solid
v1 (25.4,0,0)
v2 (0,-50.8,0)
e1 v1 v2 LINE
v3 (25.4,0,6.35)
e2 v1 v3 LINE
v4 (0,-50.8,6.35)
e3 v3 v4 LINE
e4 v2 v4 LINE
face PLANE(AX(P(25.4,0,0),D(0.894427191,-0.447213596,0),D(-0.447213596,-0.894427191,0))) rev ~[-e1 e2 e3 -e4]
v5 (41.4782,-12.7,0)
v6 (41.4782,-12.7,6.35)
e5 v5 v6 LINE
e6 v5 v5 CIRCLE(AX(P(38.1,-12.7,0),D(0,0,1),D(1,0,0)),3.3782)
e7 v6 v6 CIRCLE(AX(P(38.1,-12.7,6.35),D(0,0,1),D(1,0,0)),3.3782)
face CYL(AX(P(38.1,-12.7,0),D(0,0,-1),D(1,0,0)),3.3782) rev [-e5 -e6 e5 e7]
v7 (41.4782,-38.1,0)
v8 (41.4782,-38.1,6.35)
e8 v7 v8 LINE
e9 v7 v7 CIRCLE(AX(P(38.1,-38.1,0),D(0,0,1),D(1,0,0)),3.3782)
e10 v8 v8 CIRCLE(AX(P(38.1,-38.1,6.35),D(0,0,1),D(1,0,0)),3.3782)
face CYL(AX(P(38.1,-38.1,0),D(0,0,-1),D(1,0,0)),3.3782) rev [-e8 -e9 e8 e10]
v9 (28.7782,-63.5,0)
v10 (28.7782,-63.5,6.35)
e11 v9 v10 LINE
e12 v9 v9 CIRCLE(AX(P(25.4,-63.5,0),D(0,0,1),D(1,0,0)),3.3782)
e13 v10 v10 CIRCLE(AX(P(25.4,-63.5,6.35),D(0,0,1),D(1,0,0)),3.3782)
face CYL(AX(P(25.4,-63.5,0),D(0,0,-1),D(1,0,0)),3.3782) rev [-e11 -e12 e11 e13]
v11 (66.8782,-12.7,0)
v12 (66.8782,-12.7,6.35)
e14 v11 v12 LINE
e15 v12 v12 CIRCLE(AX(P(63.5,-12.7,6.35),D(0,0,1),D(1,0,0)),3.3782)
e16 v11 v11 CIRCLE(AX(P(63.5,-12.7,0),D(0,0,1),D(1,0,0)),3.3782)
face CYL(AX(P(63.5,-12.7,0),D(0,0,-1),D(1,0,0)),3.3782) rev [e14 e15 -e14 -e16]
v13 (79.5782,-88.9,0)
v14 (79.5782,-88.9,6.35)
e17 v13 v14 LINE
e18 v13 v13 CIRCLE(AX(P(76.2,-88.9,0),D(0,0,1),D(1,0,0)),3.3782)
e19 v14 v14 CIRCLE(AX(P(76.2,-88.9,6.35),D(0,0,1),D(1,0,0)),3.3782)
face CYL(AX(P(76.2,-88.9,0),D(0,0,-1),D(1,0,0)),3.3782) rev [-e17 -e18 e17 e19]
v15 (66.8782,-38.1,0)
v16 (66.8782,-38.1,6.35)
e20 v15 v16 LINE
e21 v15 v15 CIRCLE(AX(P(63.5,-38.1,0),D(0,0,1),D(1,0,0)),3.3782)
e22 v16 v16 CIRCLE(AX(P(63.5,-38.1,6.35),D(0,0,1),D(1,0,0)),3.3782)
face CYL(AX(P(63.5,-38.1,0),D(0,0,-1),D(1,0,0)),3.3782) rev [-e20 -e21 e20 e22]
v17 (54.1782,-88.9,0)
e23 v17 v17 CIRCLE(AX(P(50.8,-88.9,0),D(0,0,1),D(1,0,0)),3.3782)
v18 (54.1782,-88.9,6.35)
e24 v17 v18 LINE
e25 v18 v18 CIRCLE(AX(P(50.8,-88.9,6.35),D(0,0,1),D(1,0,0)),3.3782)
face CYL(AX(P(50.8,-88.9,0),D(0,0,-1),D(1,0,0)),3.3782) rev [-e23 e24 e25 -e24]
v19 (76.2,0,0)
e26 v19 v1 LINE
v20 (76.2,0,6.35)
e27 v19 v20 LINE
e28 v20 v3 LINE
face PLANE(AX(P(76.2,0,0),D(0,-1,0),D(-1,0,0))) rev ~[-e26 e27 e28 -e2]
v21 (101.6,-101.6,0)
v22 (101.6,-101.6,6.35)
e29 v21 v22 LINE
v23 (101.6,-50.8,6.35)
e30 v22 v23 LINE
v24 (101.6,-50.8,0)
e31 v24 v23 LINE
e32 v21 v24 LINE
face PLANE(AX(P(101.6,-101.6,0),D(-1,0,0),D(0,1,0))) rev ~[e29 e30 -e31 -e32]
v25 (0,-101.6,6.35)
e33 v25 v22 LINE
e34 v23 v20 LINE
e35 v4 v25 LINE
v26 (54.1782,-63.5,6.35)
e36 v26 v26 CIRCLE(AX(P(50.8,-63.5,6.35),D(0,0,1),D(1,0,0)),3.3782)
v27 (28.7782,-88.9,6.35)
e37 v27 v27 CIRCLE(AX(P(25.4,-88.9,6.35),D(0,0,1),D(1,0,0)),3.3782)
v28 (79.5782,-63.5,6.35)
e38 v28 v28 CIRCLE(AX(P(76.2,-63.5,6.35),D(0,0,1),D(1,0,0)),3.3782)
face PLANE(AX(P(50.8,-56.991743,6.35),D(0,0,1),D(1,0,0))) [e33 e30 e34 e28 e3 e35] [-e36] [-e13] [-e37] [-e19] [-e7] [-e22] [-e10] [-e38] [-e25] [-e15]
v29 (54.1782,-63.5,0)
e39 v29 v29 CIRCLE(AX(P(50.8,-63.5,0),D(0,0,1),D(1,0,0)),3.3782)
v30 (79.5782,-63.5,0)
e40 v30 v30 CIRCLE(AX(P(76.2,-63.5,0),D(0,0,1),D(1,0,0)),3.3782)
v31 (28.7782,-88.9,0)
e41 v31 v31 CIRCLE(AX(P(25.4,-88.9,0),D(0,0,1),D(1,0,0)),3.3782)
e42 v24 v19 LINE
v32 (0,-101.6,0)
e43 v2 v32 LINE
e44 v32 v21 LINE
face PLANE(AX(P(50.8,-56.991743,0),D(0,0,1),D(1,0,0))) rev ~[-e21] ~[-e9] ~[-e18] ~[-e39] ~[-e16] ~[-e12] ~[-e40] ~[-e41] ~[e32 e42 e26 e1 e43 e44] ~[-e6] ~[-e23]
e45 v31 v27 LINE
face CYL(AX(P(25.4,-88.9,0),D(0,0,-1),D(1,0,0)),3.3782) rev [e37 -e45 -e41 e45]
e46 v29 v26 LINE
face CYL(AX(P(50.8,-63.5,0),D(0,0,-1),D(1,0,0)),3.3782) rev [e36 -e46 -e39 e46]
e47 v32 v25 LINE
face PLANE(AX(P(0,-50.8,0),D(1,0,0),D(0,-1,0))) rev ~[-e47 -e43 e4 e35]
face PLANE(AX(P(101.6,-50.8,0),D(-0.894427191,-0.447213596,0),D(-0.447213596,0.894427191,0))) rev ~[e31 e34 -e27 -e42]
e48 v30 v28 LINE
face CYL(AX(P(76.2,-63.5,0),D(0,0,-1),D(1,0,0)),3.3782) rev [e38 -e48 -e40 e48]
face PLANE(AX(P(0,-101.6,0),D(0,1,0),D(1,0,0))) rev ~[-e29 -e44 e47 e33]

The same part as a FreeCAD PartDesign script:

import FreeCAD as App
import Part
import Sketcher
from FreeCAD import Vector
Q = App.Units.Quantity


def add_polygon(sketch, points):
    """Adds a closed chain of lines whose ends are joined by coincident constraints."""
    first, n = sketch.GeometryCount, len(points)
    for a, b in zip(points, points[1:] + points[:1]):
        sketch.addGeometry(Part.LineSegment(App.Vector(*a, 0), App.Vector(*b, 0)), False)
    for i in range(n):
        sketch.addConstraint(Sketcher.Constraint("Coincident", first + i, 2, first + (i + 1) % n, 1))

doc = App.newDocument("Part")
body = doc.addObject("PartDesign::Body", "Body")

sketch1 = body.newObject("Sketcher::SketchObject", "Sketch")
sketch1.AttachmentSupport = (doc.getObject("XY_Plane"), [""])
sketch1.MapMode = "FlatFace"
add_polygon(sketch1, [(76.2, 0), (25.4, 0), (0, -50.8), (0, -101.6), (101.6, -101.6), (101.6, -50.8)])
sketch1.addGeometry(Part.Circle(Vector(25.4, -88.9, 0), Vector(0, 0, 1), 3.4), False)
sketch1.addGeometry(Part.Circle(Vector(50.8, -88.9, 0), Vector(0, 0, 1), 3.4), False)
sketch1.addGeometry(Part.Circle(Vector(25.4, -63.5, 0), Vector(0, 0, 1), 3.4), False)
sketch1.addGeometry(Part.Circle(Vector(50.8, -63.5, 0), Vector(0, 0, 1), 3.4), False)
sketch1.addGeometry(Part.Circle(Vector(76.2, -88.9, 0), Vector(0, 0, 1), 3.4), False)
sketch1.addGeometry(Part.Circle(Vector(76.2, -63.5, 0), Vector(0, 0, 1), 3.4), False)
sketch1.addGeometry(Part.Circle(Vector(38.1, -38.1, 0), Vector(0, 0, 1), 3.4), False)
sketch1.addGeometry(Part.Circle(Vector(38.1, -12.7, 0), Vector(0, 0, 1), 3.4), False)
sketch1.addGeometry(Part.Circle(Vector(63.5, -38.1, 0), Vector(0, 0, 1), 3.4), False)
sketch1.addGeometry(Part.Circle(Vector(63.5, -12.7, 0), Vector(0, 0, 1), 3.4), False)
sketch1.addConstraint([
    Sketcher.Constraint("Horizontal", 0),
    Sketcher.Constraint("Vertical", 2),
    Sketcher.Constraint("Horizontal", 3),
    Sketcher.Constraint("Vertical", 4),
    Sketcher.Constraint("Equal", 6, 7),
    Sketcher.Constraint("Equal", 7, 8),
    Sketcher.Constraint("Equal", 8, 9),
    Sketcher.Constraint("Equal", 9, 10),
    Sketcher.Constraint("Equal", 10, 11),
    Sketcher.Constraint("Equal", 11, 12),
    Sketcher.Constraint("Equal", 12, 13),
    Sketcher.Constraint("Equal", 13, 14),
    Sketcher.Constraint("Equal", 14, 15),
    Sketcher.Constraint("PointOnObject", 0, 2, -1),
    Sketcher.Constraint("PointOnObject", 1, 2, -2),
    Sketcher.Constraint("Horizontal", 6, 3, 7, 3),
    Sketcher.Constraint("Horizontal", 8, 3, 9, 3),
    Sketcher.Constraint("Horizontal", 7, 3, 10, 3),
    Sketcher.Constraint("Horizontal", 9, 3, 11, 3),
    Sketcher.Constraint("Horizontal", 12, 3, 14, 3),
    Sketcher.Constraint("Horizontal", 13, 3, 15, 3),
    Sketcher.Constraint("Horizontal", 1, 2, 4, 2),
    Sketcher.Constraint("Vertical", 6, 3, 8, 3),
    Sketcher.Constraint("Vertical", 7, 3, 9, 3),
    Sketcher.Constraint("Vertical", 10, 3, 11, 3),
    Sketcher.Constraint("Vertical", 12, 3, 13, 3),
    Sketcher.Constraint("Vertical", 14, 3, 15, 3),
    Sketcher.Constraint("Vertical", 8, 3, 0, 2),
    Sketcher.Constraint("Vertical", 11, 3, 5, 2),
    Sketcher.Constraint("Equal", 0, 2),
    Sketcher.Constraint("Equal", 1, 5),
    Sketcher.Constraint("DistanceX", 0, 2, 0, 1, Q("2 in")),
    Sketcher.Constraint("DistanceX", 3, 1, 3, 2, Q("4 in")),
    Sketcher.Constraint("Diameter", 6, Q("0.266 in")),
    Sketcher.Constraint("DistanceX", -1, 1, 7, 3, Q("2 in")),
    Sketcher.Constraint("DistanceY", 1, 2, -1, 1, Q("2 in")),
    Sketcher.Constraint("DistanceY", 6, 3, 8, 3, Q("1 in")),
    Sketcher.Constraint("DistanceY", 9, 3, 12, 3, Q("1 in")),
    Sketcher.Constraint("DistanceY", 12, 3, 13, 3, Q("1 in")),
    Sketcher.Constraint("DistanceX", 12, 3, 14, 3, Q("1 in")),
    Sketcher.Constraint("DistanceY", 6, 3, -1, 1, Q("3.5 in")),
    Sketcher.Constraint("DistanceX", -1, 1, 12, 3, Q("1.5 in")),
])
pad1 = body.newObject("PartDesign::Pad", "Pad")
pad1.Profile = sketch1
pad1.Length = Q("0.25 in")

doc.recompute()
